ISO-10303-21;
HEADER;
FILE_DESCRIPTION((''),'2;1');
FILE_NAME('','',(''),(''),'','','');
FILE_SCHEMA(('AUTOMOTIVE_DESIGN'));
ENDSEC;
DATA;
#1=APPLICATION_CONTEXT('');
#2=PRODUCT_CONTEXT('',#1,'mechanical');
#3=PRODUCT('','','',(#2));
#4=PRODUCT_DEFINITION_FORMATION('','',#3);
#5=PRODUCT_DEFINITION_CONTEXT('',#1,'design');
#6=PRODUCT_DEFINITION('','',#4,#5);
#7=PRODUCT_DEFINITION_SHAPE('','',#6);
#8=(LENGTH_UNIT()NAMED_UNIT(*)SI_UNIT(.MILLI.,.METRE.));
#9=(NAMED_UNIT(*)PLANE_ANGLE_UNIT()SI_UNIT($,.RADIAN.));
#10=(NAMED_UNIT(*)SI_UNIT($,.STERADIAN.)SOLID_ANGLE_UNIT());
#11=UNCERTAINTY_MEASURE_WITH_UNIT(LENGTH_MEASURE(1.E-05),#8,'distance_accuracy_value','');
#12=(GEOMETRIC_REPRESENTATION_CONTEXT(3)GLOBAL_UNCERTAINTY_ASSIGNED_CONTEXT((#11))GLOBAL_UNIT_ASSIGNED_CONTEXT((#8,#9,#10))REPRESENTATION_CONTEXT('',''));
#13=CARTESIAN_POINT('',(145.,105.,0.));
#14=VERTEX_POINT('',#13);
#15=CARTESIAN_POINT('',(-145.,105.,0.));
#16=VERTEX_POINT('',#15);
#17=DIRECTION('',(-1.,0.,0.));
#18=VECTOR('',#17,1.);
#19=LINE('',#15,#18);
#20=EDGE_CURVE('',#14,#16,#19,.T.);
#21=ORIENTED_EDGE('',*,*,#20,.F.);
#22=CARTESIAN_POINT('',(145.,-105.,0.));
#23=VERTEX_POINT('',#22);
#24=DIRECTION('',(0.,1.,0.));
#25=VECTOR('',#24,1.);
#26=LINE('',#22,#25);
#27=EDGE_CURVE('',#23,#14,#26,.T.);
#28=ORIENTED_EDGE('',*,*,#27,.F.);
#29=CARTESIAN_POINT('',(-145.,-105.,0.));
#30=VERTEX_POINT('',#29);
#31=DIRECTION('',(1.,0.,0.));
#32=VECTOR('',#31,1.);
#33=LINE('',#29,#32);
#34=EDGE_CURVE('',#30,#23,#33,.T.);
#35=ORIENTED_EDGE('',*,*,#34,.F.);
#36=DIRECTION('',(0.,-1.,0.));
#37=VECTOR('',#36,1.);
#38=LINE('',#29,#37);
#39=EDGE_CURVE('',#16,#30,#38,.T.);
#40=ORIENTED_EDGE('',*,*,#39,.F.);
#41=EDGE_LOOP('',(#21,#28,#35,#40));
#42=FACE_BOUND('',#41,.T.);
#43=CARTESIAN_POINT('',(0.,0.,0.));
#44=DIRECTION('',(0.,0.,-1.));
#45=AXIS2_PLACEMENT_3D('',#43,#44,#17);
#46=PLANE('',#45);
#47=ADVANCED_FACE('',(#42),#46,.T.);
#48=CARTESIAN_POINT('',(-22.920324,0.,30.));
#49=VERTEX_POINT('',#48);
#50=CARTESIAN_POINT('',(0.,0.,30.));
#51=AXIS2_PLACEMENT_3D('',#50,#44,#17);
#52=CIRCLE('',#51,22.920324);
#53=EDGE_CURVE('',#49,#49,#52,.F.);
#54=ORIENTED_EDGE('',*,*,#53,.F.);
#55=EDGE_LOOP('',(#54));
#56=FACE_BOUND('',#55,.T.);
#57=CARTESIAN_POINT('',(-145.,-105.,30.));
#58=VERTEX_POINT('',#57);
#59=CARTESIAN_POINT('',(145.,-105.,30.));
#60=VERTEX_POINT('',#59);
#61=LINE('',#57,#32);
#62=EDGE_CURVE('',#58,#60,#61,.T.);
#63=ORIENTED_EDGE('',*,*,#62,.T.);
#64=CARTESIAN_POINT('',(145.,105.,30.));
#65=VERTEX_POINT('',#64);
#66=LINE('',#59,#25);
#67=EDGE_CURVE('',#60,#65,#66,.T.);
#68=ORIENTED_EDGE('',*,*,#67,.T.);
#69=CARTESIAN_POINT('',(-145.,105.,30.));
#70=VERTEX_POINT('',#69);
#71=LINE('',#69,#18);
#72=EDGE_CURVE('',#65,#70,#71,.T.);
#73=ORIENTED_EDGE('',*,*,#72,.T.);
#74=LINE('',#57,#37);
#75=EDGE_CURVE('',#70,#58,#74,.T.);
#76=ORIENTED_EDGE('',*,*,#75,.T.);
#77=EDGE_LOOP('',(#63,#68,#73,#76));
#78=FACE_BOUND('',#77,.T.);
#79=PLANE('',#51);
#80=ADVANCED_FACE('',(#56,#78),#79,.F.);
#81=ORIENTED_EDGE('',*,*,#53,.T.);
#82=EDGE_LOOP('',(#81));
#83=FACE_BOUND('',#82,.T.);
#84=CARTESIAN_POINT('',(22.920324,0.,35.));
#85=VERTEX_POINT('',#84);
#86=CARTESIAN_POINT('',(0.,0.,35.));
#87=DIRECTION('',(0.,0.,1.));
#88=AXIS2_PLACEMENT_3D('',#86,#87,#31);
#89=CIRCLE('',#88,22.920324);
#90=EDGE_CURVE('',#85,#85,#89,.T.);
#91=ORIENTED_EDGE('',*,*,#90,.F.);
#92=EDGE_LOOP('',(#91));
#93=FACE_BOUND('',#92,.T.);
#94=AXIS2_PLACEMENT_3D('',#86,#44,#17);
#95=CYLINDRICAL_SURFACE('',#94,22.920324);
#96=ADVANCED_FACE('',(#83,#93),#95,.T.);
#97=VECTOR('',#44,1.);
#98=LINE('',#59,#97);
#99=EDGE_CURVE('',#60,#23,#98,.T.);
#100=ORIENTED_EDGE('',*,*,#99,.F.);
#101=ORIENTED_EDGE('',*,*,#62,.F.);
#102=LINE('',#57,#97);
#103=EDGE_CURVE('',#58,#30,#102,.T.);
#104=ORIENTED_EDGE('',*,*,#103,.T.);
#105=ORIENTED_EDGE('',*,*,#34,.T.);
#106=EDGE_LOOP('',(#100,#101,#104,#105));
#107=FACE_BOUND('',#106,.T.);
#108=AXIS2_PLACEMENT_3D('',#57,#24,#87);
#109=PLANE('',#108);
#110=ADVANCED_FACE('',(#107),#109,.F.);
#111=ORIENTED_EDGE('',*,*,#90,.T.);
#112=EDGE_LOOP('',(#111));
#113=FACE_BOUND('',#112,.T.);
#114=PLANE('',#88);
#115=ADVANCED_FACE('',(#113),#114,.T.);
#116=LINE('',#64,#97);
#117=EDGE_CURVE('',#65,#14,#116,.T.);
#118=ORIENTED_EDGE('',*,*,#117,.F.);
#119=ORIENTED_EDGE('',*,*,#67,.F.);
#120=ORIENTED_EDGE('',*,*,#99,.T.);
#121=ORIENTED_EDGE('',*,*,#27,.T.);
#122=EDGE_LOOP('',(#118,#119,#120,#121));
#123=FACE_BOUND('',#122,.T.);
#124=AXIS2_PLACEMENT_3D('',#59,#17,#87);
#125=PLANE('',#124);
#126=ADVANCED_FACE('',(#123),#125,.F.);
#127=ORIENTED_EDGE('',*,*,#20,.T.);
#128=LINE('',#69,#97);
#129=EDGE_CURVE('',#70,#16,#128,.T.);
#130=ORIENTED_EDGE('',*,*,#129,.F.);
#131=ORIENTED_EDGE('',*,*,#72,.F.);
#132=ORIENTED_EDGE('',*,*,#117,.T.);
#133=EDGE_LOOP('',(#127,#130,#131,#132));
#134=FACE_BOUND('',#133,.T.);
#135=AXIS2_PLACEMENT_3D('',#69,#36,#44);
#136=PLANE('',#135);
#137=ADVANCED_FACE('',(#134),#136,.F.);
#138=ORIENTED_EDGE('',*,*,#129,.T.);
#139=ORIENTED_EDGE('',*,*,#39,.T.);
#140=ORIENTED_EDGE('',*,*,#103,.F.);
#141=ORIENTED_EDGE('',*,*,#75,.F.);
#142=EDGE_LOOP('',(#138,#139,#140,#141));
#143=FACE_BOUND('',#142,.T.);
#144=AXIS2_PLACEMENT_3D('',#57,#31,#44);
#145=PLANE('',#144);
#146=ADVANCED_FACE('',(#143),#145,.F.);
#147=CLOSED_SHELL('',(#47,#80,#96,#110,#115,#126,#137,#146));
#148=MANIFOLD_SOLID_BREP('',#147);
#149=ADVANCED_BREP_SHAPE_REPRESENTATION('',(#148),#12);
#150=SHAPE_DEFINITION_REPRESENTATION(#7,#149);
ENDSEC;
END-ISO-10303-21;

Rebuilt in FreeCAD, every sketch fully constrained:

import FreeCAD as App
import Part
import Sketcher

doc = App.newDocument("Part")
params = doc.addObject("Spreadsheet::Sheet", "Params")
for row, (alias, value) in enumerate([
    ("sketch1_width", "290 mm"),
    ("sketch1_height", "210 mm"),
    ("pad1_length", "30 mm"),
    ("pad2_length", "5 mm"),
], start=1):
    params.set(f"A{row}", alias)
    params.set(f"B{row}", "=" + value)
    params.setAlias(f"B{row}", alias)

body = doc.addObject("PartDesign::Body", "Body")

# Sketch on XY plane
sketch1 = body.newObject("Sketcher::SketchObject", "Sketch")
sketch1.AttachmentSupport = (doc.getObject("XY_Plane"), [""])
sketch1.MapMode = "FlatFace"
sketch1.addGeometry([
    Part.LineSegment(App.Vector(-145, 105, 0), App.Vector(-145, -105, 0)),
    Part.LineSegment(App.Vector(-145, -105, 0), App.Vector(145, -105, 0)),
    Part.LineSegment(App.Vector(145, -105, 0), App.Vector(145, 105, 0)),
    Part.LineSegment(App.Vector(145, 105, 0), App.Vector(-145, 105, 0)),
], False)
sketch1.addConstraint([
    Sketcher.Constraint("Coincident", 0, 2, 1, 1),
    Sketcher.Constraint("Coincident", 1, 2, 2, 1),
    Sketcher.Constraint("Coincident", 2, 2, 3, 1),
    Sketcher.Constraint("Coincident", 3, 2, 0, 1),
    Sketcher.Constraint("Vertical", 0),
    Sketcher.Constraint("Horizontal", 1),
    Sketcher.Constraint("Vertical", 2),
    Sketcher.Constraint("Horizontal", 3),
    Sketcher.Constraint("Symmetric", 0, 2, 2, 2, -1, 1),
    Sketcher.Constraint("DistanceX", 1, 1, 1, 2, 290.0),
    Sketcher.Constraint("DistanceY", 0, 2, 0, 1, 210.0),
])
sketch1.setExpression("Constraints[9]", "Params.sketch1_width")
sketch1.setExpression("Constraints[10]", "Params.sketch1_height")
pad1 = body.newObject("PartDesign::Pad", "Pad")
pad1.Profile = sketch1
pad1.setExpression("Length", "Params.pad1_length")

# Sketch on XY plane
sketch2 = body.newObject("Sketcher::SketchObject", "Sketch001")
sketch2.AttachmentSupport = (doc.getObject("XY_Plane"), [""])
sketch2.MapMode = "FlatFace"
sketch2.AttachmentOffset = App.Placement(App.Vector(0, 0, 30), App.Rotation())
sketch2.addGeometry(Part.Circle(App.Vector(0, 0, 0), App.Vector(0, 0, 1), 23), False)
sketch2.addConstraint([
    Sketcher.Constraint("Coincident", 0, 3, -1, 1),
    Sketcher.Constraint("Diameter", 0, 45.840648),
])
pad2 = body.newObject("PartDesign::Pad", "Pad001")
pad2.Profile = sketch2
pad2.setExpression("Length", "Params.pad2_length")

doc.recompute()
